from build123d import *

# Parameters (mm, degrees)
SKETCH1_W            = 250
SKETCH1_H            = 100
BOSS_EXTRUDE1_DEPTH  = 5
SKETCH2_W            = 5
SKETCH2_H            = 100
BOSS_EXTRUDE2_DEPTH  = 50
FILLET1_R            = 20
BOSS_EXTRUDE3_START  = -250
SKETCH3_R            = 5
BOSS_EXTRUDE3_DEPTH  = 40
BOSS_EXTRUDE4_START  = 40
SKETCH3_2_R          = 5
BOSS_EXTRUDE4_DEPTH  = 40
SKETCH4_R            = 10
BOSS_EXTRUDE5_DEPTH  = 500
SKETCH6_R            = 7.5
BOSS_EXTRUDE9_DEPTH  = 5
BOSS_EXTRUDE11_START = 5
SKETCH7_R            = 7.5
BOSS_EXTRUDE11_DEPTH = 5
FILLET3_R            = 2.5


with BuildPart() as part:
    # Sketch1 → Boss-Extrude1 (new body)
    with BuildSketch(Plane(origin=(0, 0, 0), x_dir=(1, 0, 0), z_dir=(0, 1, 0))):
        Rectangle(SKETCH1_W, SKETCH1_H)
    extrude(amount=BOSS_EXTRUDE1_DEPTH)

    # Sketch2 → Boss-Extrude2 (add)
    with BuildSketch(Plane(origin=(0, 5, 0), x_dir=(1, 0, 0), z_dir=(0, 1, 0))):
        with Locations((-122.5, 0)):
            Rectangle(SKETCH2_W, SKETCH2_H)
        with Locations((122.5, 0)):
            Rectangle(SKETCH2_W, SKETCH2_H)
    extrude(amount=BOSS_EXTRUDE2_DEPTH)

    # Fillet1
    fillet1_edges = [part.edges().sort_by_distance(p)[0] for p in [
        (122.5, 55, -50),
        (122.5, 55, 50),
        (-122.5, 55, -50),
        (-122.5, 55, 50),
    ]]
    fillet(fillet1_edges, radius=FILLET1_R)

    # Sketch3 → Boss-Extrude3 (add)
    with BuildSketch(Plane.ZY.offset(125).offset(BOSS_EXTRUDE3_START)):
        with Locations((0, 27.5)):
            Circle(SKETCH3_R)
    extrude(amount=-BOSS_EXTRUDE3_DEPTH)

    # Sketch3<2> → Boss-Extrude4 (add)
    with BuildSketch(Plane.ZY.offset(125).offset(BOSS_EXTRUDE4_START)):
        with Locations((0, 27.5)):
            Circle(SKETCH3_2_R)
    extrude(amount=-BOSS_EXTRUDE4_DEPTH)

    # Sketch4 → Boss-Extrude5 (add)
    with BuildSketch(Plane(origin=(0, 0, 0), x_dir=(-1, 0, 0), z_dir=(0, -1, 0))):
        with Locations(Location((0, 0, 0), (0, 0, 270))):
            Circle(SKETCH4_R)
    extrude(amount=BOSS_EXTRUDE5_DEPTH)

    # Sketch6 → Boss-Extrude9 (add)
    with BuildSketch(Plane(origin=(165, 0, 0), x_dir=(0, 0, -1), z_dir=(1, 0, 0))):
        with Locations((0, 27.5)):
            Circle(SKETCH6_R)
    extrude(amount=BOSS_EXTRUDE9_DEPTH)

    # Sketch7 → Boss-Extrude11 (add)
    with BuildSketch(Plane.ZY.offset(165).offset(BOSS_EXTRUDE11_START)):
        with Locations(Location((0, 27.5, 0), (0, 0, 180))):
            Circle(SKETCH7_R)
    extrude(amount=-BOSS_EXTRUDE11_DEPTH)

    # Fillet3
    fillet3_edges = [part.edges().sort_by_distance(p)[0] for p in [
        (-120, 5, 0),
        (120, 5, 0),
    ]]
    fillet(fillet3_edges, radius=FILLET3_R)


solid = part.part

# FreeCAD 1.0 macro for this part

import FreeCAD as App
import Part
import Sketcher
from FreeCAD import Vector
Q = App.Units.Quantity


def edges_at(feature, points):
    """Names of the edges that pass closest to the given points."""
    edges = feature.Shape.Edges
    near = lambda p: min(range(len(edges)), key=lambda i: edges[i].distToShape(Part.Vertex(*p))[0])
    return sorted({f"Edge{near(p) + 1}" for p in points})

doc = App.newDocument("Part")
body = doc.addObject("PartDesign::Body", "Body")

# Sketch on XZ plane
sketch1 = doc.addObject("Sketcher::SketchObject", "Sketch")
body.addObject(sketch1)
sketch1.AttachmentSupport = (doc.XZ_Plane, [""])
sketch1.MapMode = "FlatFace"
sketch1.addGeometry([
    Part.LineSegment(Vector(-125, -50, 0), Vector(-125, 50, 0)),
    Part.LineSegment(Vector(-125, 50, 0), Vector(125, 50, 0)),
    Part.LineSegment(Vector(125, 50, 0), Vector(125, -50, 0)),
    Part.LineSegment(Vector(125, -50, 0), Vector(-125, -50, 0)),
], False)
sketch1.addConstraint([
    Sketcher.Constraint("Coincident", 0, 2, 1, 1),
    Sketcher.Constraint("Coincident", 1, 2, 2, 1),
    Sketcher.Constraint("Coincident", 2, 2, 3, 1),
    Sketcher.Constraint("Coincident", 3, 2, 0, 1),
    Sketcher.Constraint("Vertical", 0),
    Sketcher.Constraint("Horizontal", 1),
    Sketcher.Constraint("Vertical", 2),
    Sketcher.Constraint("Horizontal", 3),
    Sketcher.Constraint("Symmetric", 0, 2, 2, 2, -1, 1),
    Sketcher.Constraint("DistanceX", 1, 1, 1, 2, Q("250 mm")),
    Sketcher.Constraint("DistanceY", 0, 1, 0, 2, Q("100 mm")),
])
pad1 = doc.addObject("PartDesign::Pad", "Pad")
body.addObject(pad1)
pad1.Profile = sketch1
pad1.Length = 5
pad1.Reversed = True

# Sketch on XZ plane
sketch2 = doc.addObject("Sketcher::SketchObject", "Sketch001")
body.addObject(sketch2)
sketch2.AttachmentSupport = (doc.XZ_Plane, [""])
sketch2.MapMode = "FlatFace"
sketch2.AttachmentOffset = App.Placement(Vector(0, 0, -5), App.Rotation())
sketch2.addGeometry([
    Part.LineSegment(Vector(-125, -50, 0), Vector(-125, 50, 0)),  # 0
    Part.LineSegment(Vector(-125, 50, 0), Vector(-120, 50, 0)),  # 1
    Part.LineSegment(Vector(-120, 50, 0), Vector(-120, -50, 0)),  # 2
    Part.LineSegment(Vector(-120, -50, 0), Vector(-125, -50, 0)),  # 3
    Part.LineSegment(Vector(120, -50, 0), Vector(120, 50, 0)),  # 4
    Part.LineSegment(Vector(120, 50, 0), Vector(125, 50, 0)),  # 5
    Part.LineSegment(Vector(125, 50, 0), Vector(125, -50, 0)),  # 6
    Part.LineSegment(Vector(125, -50, 0), Vector(120, -50, 0)),  # 7
], False)
sketch2.addConstraint([
    Sketcher.Constraint("Coincident", 0, 2, 1, 1),
    Sketcher.Constraint("Coincident", 1, 2, 2, 1),
    Sketcher.Constraint("Coincident", 2, 2, 3, 1),
    Sketcher.Constraint("Coincident", 3, 2, 0, 1),
    Sketcher.Constraint("Coincident", 4, 2, 5, 1),
    Sketcher.Constraint("Coincident", 5, 2, 6, 1),
    Sketcher.Constraint("Coincident", 6, 2, 7, 1),
    Sketcher.Constraint("Coincident", 7, 2, 4, 1),
    Sketcher.Constraint("Vertical", 0),
    Sketcher.Constraint("Horizontal", 1),
    Sketcher.Constraint("Vertical", 2),
    Sketcher.Constraint("Horizontal", 3),
    Sketcher.Constraint("Vertical", 4),
    Sketcher.Constraint("Horizontal", 5),
    Sketcher.Constraint("Vertical", 6),
    Sketcher.Constraint("Horizontal", 7),
    Sketcher.Constraint("Symmetric", 2, 2, 4, 2, -1, 1),
    Sketcher.Constraint("Symmetric", 0, 2, 6, 2, -1, 1),
    Sketcher.Constraint("Horizontal", 1, 2, 4, 2),
    Sketcher.Constraint("DistanceX", 1, 1, 1, 2, Q("5 mm")),
    Sketcher.Constraint("DistanceY", 0, 1, 0, 2, Q("100 mm")),
    Sketcher.Constraint("DistanceX", 0, 2, -1, 1, Q("125 mm")),
])
pad2 = doc.addObject("PartDesign::Pad", "Pad001")
body.addObject(pad2)
pad2.Profile = sketch2
pad2.Length = 50
pad2.Reversed = True
doc.recompute()

fillet = doc.addObject("PartDesign::Fillet", "Fillet")
body.addObject(fillet)
fillet.Base = (pad2, edges_at(pad2, [
    (122.5, 55, -50),
    (122.5, 55, 50),
    (-122.5, 55, -50),
    (-122.5, 55, 50),
]))
fillet.Radius = 20

# Sketch on YZ plane
sketch3 = doc.addObject("Sketcher::SketchObject", "Sketch002")
body.addObject(sketch3)
sketch3.AttachmentSupport = (doc.YZ_Plane, [""])
sketch3.MapMode = "FlatFace"
sketch3.AttachmentOffset = App.Placement(Vector(0, 0, 125), App.Rotation())
sketch3.addGeometry(Part.Circle(Vector(28, 0, 0), Vector(0, 0, 1), 5), False)
sketch3.addConstraint([
    Sketcher.Constraint("PointOnObject", 0, 3, -1),
    Sketcher.Constraint("Diameter", 0, Q("10 mm")),
    Sketcher.Constraint("DistanceX", -1, 1, 0, 3, Q("27.5 mm")),
])
pad3 = doc.addObject("PartDesign::Pad", "Pad002")
body.addObject(pad3)
pad3.Profile = sketch3
pad3.Length = 40

# Sketch on YZ plane
sketch4 = doc.addObject("Sketcher::SketchObject", "Sketch003")
body.addObject(sketch4)
sketch4.AttachmentSupport = (doc.YZ_Plane, [""])
sketch4.MapMode = "FlatFace"
sketch4.AttachmentOffset = App.Placement(Vector(0, 0, -165), App.Rotation())
sketch4.addGeometry(Part.Circle(Vector(28, 0, 0), Vector(0, 0, 1), 5), False)
sketch4.addConstraint([
    Sketcher.Constraint("PointOnObject", 0, 3, -1),
    Sketcher.Constraint("Diameter", 0, Q("10 mm")),
    Sketcher.Constraint("DistanceX", -1, 1, 0, 3, Q("27.5 mm")),
])
pad4 = doc.addObject("PartDesign::Pad", "Pad003")
body.addObject(pad4)
pad4.Profile = sketch4
pad4.Length = 40

# Sketch on XZ plane
sketch5 = doc.addObject("Sketcher::SketchObject", "Sketch004")
body.addObject(sketch5)
sketch5.AttachmentSupport = (doc.XZ_Plane, [""])
sketch5.MapMode = "FlatFace"
sketch5.addGeometry(Part.Circle(Vector(0, 0, 0), Vector(0, 0, 1), 10), False)
sketch5.addConstraint([
    Sketcher.Constraint("Coincident", 0, 3, -1, 1),
    Sketcher.Constraint("Diameter", 0, Q("20 mm")),
])
pad5 = doc.addObject("PartDesign::Pad", "Pad004")
body.addObject(pad5)
pad5.Profile = sketch5
pad5.Length = 500

# Sketch on YZ plane
sketch6 = doc.addObject("Sketcher::SketchObject", "Sketch005")
body.addObject(sketch6)
sketch6.AttachmentSupport = (doc.YZ_Plane, [""])
sketch6.MapMode = "FlatFace"
sketch6.AttachmentOffset = App.Placement(Vector(0, 0, 165), App.Rotation())
sketch6.addGeometry(Part.Circle(Vector(28, 0, 0), Vector(0, 0, 1), 8), False)
sketch6.addConstraint([
    Sketcher.Constraint("PointOnObject", 0, 3, -1),
    Sketcher.Constraint("Diameter", 0, Q("15 mm")),
    Sketcher.Constraint("DistanceX", -1, 1, 0, 3, Q("27.5 mm")),
])
pad6 = doc.addObject("PartDesign::Pad", "Pad005")
body.addObject(pad6)
pad6.Profile = sketch6
pad6.Length = 5

# Sketch on YZ plane
sketch7 = doc.addObject("Sketcher::SketchObject", "Sketch006")
body.addObject(sketch7)
sketch7.AttachmentSupport = (doc.YZ_Plane, [""])
sketch7.MapMode = "FlatFace"
sketch7.AttachmentOffset = App.Placement(Vector(0, 0, -170), App.Rotation())
sketch7.addGeometry(Part.Circle(Vector(28, 0, 0), Vector(0, 0, 1), 8), False)
sketch7.addConstraint([
    Sketcher.Constraint("PointOnObject", 0, 3, -1),
    Sketcher.Constraint("Diameter", 0, Q("15 mm")),
    Sketcher.Constraint("DistanceX", -1, 1, 0, 3, Q("27.5 mm")),
])
pad7 = doc.addObject("PartDesign::Pad", "Pad006")
body.addObject(pad7)
pad7.Profile = sketch7
pad7.Length = 5
doc.recompute()

fillet2 = doc.addObject("PartDesign::Fillet", "Fillet001")
body.addObject(fillet2)
fillet2.Base = (pad7, edges_at(pad7, [(-120, 5, 0), (120, 5, 0)]))
fillet2.Radius = 2.5

doc.recompute()
